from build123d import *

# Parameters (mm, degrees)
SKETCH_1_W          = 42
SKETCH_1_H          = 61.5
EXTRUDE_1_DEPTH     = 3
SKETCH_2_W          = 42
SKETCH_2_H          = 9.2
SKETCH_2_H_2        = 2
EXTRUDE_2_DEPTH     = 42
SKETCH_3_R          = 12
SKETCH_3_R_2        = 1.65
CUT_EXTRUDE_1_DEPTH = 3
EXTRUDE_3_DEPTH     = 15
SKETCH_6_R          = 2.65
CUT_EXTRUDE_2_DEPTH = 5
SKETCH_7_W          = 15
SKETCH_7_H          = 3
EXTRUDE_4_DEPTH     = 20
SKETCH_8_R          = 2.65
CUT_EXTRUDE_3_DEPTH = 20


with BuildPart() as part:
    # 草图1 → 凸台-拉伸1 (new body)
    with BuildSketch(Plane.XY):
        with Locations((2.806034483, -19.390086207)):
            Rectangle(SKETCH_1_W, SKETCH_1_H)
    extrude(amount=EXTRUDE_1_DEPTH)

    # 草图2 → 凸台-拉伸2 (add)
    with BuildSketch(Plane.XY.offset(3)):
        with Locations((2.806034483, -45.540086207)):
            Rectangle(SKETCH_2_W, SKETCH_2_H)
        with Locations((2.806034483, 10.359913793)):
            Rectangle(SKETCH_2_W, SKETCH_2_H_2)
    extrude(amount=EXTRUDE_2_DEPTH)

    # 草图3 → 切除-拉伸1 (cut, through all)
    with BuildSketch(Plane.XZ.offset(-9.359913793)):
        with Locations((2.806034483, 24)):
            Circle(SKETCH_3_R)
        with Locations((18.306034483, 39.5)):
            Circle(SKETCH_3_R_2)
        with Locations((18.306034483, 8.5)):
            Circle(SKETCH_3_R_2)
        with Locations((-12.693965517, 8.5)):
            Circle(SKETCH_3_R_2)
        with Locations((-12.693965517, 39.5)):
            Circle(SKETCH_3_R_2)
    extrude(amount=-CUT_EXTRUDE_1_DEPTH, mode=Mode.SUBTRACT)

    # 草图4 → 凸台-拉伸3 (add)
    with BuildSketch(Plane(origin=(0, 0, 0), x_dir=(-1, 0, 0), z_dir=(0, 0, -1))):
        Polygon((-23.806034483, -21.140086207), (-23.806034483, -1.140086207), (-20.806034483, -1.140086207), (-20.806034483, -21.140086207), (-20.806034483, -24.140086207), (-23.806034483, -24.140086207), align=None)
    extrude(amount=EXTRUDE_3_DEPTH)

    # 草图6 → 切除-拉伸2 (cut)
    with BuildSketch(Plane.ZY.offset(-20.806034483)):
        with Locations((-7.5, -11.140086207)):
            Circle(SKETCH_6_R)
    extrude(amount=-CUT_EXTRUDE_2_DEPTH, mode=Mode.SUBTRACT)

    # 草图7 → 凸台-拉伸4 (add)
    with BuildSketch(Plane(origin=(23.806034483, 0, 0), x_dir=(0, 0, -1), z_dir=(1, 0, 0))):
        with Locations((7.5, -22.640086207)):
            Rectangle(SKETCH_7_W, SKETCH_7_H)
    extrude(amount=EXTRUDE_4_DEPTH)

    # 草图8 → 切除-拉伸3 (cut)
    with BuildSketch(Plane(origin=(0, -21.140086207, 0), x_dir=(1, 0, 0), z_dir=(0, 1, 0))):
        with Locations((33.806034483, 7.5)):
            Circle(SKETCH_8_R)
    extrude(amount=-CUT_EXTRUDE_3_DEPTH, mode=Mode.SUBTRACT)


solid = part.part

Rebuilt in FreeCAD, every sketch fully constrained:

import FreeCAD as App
import Part
import Sketcher

V = App.Vector

doc = App.newDocument("Part")
body = doc.addObject("PartDesign::Body", "Body")

# Sketch on XY plane
sketch1 = body.newObject("Sketcher::SketchObject", "Sketch")
sketch1.AttachmentSupport = (doc.getObject("XY_Plane"), [""])
sketch1.MapMode = "FlatFace"
sketch1.addGeometry([
    Part.LineSegment(V(-18, 11, 0), V(-18, -50, 0)),
    Part.LineSegment(V(-18, -50, 0), V(24, -50, 0)),
    Part.LineSegment(V(24, -50, 0), V(24, 11, 0)),
    Part.LineSegment(V(24, 11, 0), V(-18, 11, 0)),
], False)
sketch1.addConstraint([
    Sketcher.Constraint("Coincident", 0, 2, 1, 1),
    Sketcher.Constraint("Coincident", 1, 2, 2, 1),
    Sketcher.Constraint("Coincident", 2, 2, 3, 1),
    Sketcher.Constraint("Coincident", 3, 2, 0, 1),
    Sketcher.Constraint("Vertical", 0),
    Sketcher.Constraint("Horizontal", 1),
    Sketcher.Constraint("Vertical", 2),
    Sketcher.Constraint("Horizontal", 3),
    Sketcher.Constraint("DistanceX", 1, 1, 1, 2, 42.0),
    Sketcher.Constraint("DistanceY", 0, 2, 0, 1, 61.5),
    Sketcher.Constraint("DistanceX", 0, 2, -1, 1, 18.193966),
    Sketcher.Constraint("DistanceY", 0, 2, -1, 1, 50.140086),
])
pad1 = body.newObject("PartDesign::Pad", "Pad")
pad1.Profile = sketch1
pad1.Length = 3

# Sketch on XY plane
sketch2 = body.newObject("Sketcher::SketchObject", "Sketch001")
sketch2.AttachmentSupport = (doc.getObject("XY_Plane"), [""])
sketch2.MapMode = "FlatFace"
sketch2.AttachmentOffset = App.Placement(V(0, 0, 3), App.Rotation())
sketch2.addGeometry([
    Part.LineSegment(V(-18.2, -40.9, 0), V(-18.2, -50.1, 0)),  # 0
    Part.LineSegment(V(-18.2, -50.1, 0), V(23.8, -50.1, 0)),  # 1
    Part.LineSegment(V(23.8, -50.1, 0), V(23.8, -40.9, 0)),  # 2
    Part.LineSegment(V(23.8, -40.9, 0), V(-18.2, -40.9, 0)),  # 3
    Part.LineSegment(V(-18.2, 11.4, 0), V(-18.2, 9.4, 0)),  # 4
    Part.LineSegment(V(-18.2, 9.4, 0), V(23.8, 9.4, 0)),  # 5
    Part.LineSegment(V(23.8, 9.4, 0), V(23.8, 11.4, 0)),  # 6
    Part.LineSegment(V(23.8, 11.4, 0), V(-18.2, 11.4, 0)),  # 7
], False)
sketch2.addConstraint([
    Sketcher.Constraint("Coincident", 0, 2, 1, 1),
    Sketcher.Constraint("Coincident", 1, 2, 2, 1),
    Sketcher.Constraint("Coincident", 2, 2, 3, 1),
    Sketcher.Constraint("Coincident", 3, 2, 0, 1),
    Sketcher.Constraint("Coincident", 4, 2, 5, 1),
    Sketcher.Constraint("Coincident", 5, 2, 6, 1),
    Sketcher.Constraint("Coincident", 6, 2, 7, 1),
    Sketcher.Constraint("Coincident", 7, 2, 4, 1),
    Sketcher.Constraint("Vertical", 0),
    Sketcher.Constraint("Horizontal", 1),
    Sketcher.Constraint("Vertical", 2),
    Sketcher.Constraint("Horizontal", 3),
    Sketcher.Constraint("Vertical", 4),
    Sketcher.Constraint("Horizontal", 5),
    Sketcher.Constraint("Vertical", 6),
    Sketcher.Constraint("Horizontal", 7),
    Sketcher.Constraint("Vertical", 3, 2, 4, 2),
    Sketcher.Constraint("Vertical", 2, 2, 5, 2),
    Sketcher.Constraint("DistanceX", 1, 1, 1, 2, 42.0),
    Sketcher.Constraint("DistanceY", 4, 2, 4, 1, 2.0),
    Sketcher.Constraint("DistanceY", 0, 2, 0, 1, 9.2),
    Sketcher.Constraint("DistanceY", 3, 2, 4, 2, 50.3),
    Sketcher.Constraint("DistanceX", 0, 2, -1, 1, 18.193966),
    Sketcher.Constraint("DistanceY", 0, 2, -1, 1, 50.140086),
])
pad2 = body.newObject("PartDesign::Pad", "Pad001")
pad2.Profile = sketch2
pad2.Length = 42

# Sketch on XZ plane
sketch3 = body.newObject("Sketcher::SketchObject", "Sketch002")
sketch3.AttachmentSupport = (doc.getObject("XZ_Plane"), [""])
sketch3.MapMode = "FlatFace"
sketch3.AttachmentOffset = App.Placement(V(0, 0, -9.359914), App.Rotation())
sketch3.addGeometry([
    Part.Circle(V(2.8, 24, 0), V(0, 0, 1), 12),  # 0
    Part.Circle(V(18.3, 39.5, 0), V(0, 0, 1), 1.6),  # 1
    Part.Circle(V(18.3, 8.5, 0), V(0, 0, 1), 1.6),  # 2
    Part.Circle(V(-12.7, 8.5, 0), V(0, 0, 1), 1.6),  # 3
    Part.Circle(V(-12.7, 39.5, 0), V(0, 0, 1), 1.6),  # 4
], False)
sketch3.addConstraint([
    Sketcher.Constraint("Equal", 1, 2),
    Sketcher.Constraint("Equal", 2, 3),
    Sketcher.Constraint("Equal", 3, 4),
    Sketcher.Constraint("Horizontal", 2, 3, 3, 3),
    Sketcher.Constraint("Horizontal", 1, 3, 4, 3),
    Sketcher.Constraint("Vertical", 1, 3, 2, 3),
    Sketcher.Constraint("Vertical", 3, 3, 4, 3),
    Sketcher.Constraint("Diameter", 0, 24.0),
    Sketcher.Constraint("Diameter", 1, 3.3),
    Sketcher.Constraint("DistanceY", -1, 1, 0, 3, 24.0),
    Sketcher.Constraint("DistanceY", 2, 3, 1, 3, 31.0),
    Sketcher.Constraint("DistanceX", 3, 3, 2, 3, 31.0),
    Sketcher.Constraint("DistanceY", -1, 1, 1, 3, 39.5),
    Sketcher.Constraint("DistanceX", 0, 3, 1, 3, 15.5),
    Sketcher.Constraint("DistanceX", -1, 1, 0, 3, 2.806034),
])
pocket1 = body.newObject("PartDesign::Pocket", "Pocket")
pocket1.Profile = sketch3
pocket1.Type = "ThroughAll"

# Sketch on XY plane
sketch4 = body.newObject("Sketcher::SketchObject", "Sketch003")
sketch4.AttachmentSupport = (doc.getObject("XY_Plane"), [""])
sketch4.MapMode = "FlatFace"
sketch4.addGeometry([
    Part.LineSegment(V(23.8, -1.1, 0), V(23.8, -24.1, 0)),
    Part.LineSegment(V(23.8, -24.1, 0), V(20.8, -24.1, 0)),
    Part.LineSegment(V(20.8, -24.1, 0), V(20.8, -1.1, 0)),
    Part.LineSegment(V(20.8, -1.1, 0), V(23.8, -1.1, 0)),
], False)
sketch4.addConstraint([
    Sketcher.Constraint("Coincident", 0, 2, 1, 1),
    Sketcher.Constraint("Coincident", 1, 2, 2, 1),
    Sketcher.Constraint("Coincident", 2, 2, 3, 1),
    Sketcher.Constraint("Coincident", 3, 2, 0, 1),
    Sketcher.Constraint("Vertical", 0),
    Sketcher.Constraint("Horizontal", 1),
    Sketcher.Constraint("Vertical", 2),
    Sketcher.Constraint("Horizontal", 3),
    Sketcher.Constraint("DistanceX", 1, 2, 1, 1, 3.0),
    Sketcher.Constraint("DistanceY", 0, 2, 0, 1, 23.0),
    Sketcher.Constraint("DistanceX", -1, 1, 0, 2, 23.806034),
    Sketcher.Constraint("DistanceY", 0, 2, -1, 1, 24.140086),
])
pad3 = body.newObject("PartDesign::Pad", "Pad002")
pad3.Profile = sketch4
pad3.Length = 15
pad3.Reversed = True

# Sketch on YZ plane
sketch5 = body.newObject("Sketcher::SketchObject", "Sketch004")
sketch5.AttachmentSupport = (doc.getObject("YZ_Plane"), [""])
sketch5.MapMode = "FlatFace"
sketch5.AttachmentOffset = App.Placement(V(0, 0, 20.806034), App.Rotation())
sketch5.addGeometry(Part.Circle(V(-11.1, -7.5, 0), V(0, 0, 1), 2.6), False)
sketch5.addConstraint([
    Sketcher.Constraint("Diameter", 0, 5.3),
    Sketcher.Constraint("DistanceY", 0, 3, -1, 1, 7.5),
    Sketcher.Constraint("DistanceX", 0, 3, -1, 1, 11.140086),
])
pocket2 = body.newObject("PartDesign::Pocket", "Pocket001")
pocket2.Profile = sketch5
pocket2.Length = 5
pocket2.Reversed = True

# Sketch on YZ plane
sketch6 = body.newObject("Sketcher::SketchObject", "Sketch005")
sketch6.AttachmentSupport = (doc.getObject("YZ_Plane"), [""])
sketch6.MapMode = "FlatFace"
sketch6.AttachmentOffset = App.Placement(V(0, 0, 23.806034), App.Rotation())
sketch6.addGeometry([
    Part.LineSegment(V(-21.1, 0, 0), V(-24.1, 0, 0)),
    Part.LineSegment(V(-24.1, 0, 0), V(-24.1, -15, 0)),
    Part.LineSegment(V(-24.1, -15, 0), V(-21.1, -15, 0)),
    Part.LineSegment(V(-21.1, -15, 0), V(-21.1, 0, 0)),
], False)
sketch6.addConstraint([
    Sketcher.Constraint("Coincident", 0, 2, 1, 1),
    Sketcher.Constraint("Coincident", 1, 2, 2, 1),
    Sketcher.Constraint("Coincident", 2, 2, 3, 1),
    Sketcher.Constraint("Coincident", 3, 2, 0, 1),
    Sketcher.Constraint("Horizontal", 0),
    Sketcher.Constraint("Vertical", 1),
    Sketcher.Constraint("Horizontal", 2),
    Sketcher.Constraint("Vertical", 3),
    Sketcher.Constraint("PointOnObject", 0, 2, -1),
    Sketcher.Constraint("DistanceX", 0, 2, 0, 1, 3.0),
    Sketcher.Constraint("DistanceY", 1, 2, 1, 1, 15.0),
    Sketcher.Constraint("DistanceX", 0, 2, -1, 1, 24.140086),
])
pad4 = body.newObject("PartDesign::Pad", "Pad003")
pad4.Profile = sketch6
pad4.Length = 20

# Sketch on XZ plane
sketch7 = body.newObject("Sketcher::SketchObject", "Sketch006")
sketch7.AttachmentSupport = (doc.getObject("XZ_Plane"), [""])
sketch7.MapMode = "FlatFace"
sketch7.AttachmentOffset = App.Placement(V(0, 0, 21.140086), App.Rotation())
sketch7.addGeometry(Part.Circle(V(33.8, -7.5, 0), V(0, 0, 1), 2.6), False)
sketch7.addConstraint([
    Sketcher.Constraint("Diameter", 0, 5.3),
    Sketcher.Constraint("DistanceY", 0, 3, -1, 1, 7.5),
    Sketcher.Constraint("DistanceX", -1, 1, 0, 3, 33.806034),
])
pocket3 = body.newObject("PartDesign::Pocket", "Pocket002")
pocket3.Profile = sketch7
pocket3.Length = 20
pocket3.Reversed = True

doc.recompute()
